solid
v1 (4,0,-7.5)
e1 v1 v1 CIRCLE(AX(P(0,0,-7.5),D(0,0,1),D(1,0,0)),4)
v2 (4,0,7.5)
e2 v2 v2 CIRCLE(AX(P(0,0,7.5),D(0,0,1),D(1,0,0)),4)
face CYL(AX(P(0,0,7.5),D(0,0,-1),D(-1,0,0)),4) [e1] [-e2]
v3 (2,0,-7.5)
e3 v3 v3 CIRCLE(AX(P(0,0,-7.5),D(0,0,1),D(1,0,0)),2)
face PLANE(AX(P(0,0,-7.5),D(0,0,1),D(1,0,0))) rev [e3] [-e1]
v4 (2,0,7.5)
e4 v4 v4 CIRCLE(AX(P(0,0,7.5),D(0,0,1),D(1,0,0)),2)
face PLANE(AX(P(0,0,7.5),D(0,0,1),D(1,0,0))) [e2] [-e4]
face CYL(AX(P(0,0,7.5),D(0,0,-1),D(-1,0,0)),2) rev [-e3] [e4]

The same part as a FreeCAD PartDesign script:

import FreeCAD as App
import Part
import Sketcher
from FreeCAD import Vector

doc = App.newDocument("Part")
params = doc.addObject("Spreadsheet::Sheet", "Params")
for row, (alias, value) in enumerate([
    ("sketch1_diameter", "8 mm"),
    ("sketch1_diameter2", "4 mm"),
    ("pad1_length", "15 mm"),
], start=1):
    params.set(f"A{row}", alias)
    params.set(f"B{row}", "=" + value)
    params.setAlias(f"B{row}", alias)

body = doc.addObject("PartDesign::Body", "Body")

sketch1 = body.newObject("Sketcher::SketchObject", "Sketch")
sketch1.AttachmentSupport = (doc.getObject("XY_Plane"), [""])
sketch1.MapMode = "FlatFace"
sketch1.addGeometry(Part.Circle(Vector(0, 0, 0), Vector(0, 0, 1), 4), False)
sketch1.addGeometry(Part.Circle(Vector(0, 0, 0), Vector(0, 0, 1), 2), False)
sketch1.addConstraint(Sketcher.Constraint("Coincident", 0, 3, -1, 1))
sketch1.addConstraint(Sketcher.Constraint("Coincident", 1, 3, -1, 1))
sketch1.addConstraint(Sketcher.Constraint("Diameter", 0, 8.0))
sketch1.addConstraint(Sketcher.Constraint("Diameter", 1, 4.0))
sketch1.setExpression("Constraints[2]", "Params.sketch1_diameter")
sketch1.setExpression("Constraints[3]", "Params.sketch1_diameter2")
pad1 = body.newObject("PartDesign::Pad", "Pad")
pad1.Profile = sketch1
pad1.setExpression("Length", "Params.pad1_length")
pad1.Midplane = True

doc.recompute()
